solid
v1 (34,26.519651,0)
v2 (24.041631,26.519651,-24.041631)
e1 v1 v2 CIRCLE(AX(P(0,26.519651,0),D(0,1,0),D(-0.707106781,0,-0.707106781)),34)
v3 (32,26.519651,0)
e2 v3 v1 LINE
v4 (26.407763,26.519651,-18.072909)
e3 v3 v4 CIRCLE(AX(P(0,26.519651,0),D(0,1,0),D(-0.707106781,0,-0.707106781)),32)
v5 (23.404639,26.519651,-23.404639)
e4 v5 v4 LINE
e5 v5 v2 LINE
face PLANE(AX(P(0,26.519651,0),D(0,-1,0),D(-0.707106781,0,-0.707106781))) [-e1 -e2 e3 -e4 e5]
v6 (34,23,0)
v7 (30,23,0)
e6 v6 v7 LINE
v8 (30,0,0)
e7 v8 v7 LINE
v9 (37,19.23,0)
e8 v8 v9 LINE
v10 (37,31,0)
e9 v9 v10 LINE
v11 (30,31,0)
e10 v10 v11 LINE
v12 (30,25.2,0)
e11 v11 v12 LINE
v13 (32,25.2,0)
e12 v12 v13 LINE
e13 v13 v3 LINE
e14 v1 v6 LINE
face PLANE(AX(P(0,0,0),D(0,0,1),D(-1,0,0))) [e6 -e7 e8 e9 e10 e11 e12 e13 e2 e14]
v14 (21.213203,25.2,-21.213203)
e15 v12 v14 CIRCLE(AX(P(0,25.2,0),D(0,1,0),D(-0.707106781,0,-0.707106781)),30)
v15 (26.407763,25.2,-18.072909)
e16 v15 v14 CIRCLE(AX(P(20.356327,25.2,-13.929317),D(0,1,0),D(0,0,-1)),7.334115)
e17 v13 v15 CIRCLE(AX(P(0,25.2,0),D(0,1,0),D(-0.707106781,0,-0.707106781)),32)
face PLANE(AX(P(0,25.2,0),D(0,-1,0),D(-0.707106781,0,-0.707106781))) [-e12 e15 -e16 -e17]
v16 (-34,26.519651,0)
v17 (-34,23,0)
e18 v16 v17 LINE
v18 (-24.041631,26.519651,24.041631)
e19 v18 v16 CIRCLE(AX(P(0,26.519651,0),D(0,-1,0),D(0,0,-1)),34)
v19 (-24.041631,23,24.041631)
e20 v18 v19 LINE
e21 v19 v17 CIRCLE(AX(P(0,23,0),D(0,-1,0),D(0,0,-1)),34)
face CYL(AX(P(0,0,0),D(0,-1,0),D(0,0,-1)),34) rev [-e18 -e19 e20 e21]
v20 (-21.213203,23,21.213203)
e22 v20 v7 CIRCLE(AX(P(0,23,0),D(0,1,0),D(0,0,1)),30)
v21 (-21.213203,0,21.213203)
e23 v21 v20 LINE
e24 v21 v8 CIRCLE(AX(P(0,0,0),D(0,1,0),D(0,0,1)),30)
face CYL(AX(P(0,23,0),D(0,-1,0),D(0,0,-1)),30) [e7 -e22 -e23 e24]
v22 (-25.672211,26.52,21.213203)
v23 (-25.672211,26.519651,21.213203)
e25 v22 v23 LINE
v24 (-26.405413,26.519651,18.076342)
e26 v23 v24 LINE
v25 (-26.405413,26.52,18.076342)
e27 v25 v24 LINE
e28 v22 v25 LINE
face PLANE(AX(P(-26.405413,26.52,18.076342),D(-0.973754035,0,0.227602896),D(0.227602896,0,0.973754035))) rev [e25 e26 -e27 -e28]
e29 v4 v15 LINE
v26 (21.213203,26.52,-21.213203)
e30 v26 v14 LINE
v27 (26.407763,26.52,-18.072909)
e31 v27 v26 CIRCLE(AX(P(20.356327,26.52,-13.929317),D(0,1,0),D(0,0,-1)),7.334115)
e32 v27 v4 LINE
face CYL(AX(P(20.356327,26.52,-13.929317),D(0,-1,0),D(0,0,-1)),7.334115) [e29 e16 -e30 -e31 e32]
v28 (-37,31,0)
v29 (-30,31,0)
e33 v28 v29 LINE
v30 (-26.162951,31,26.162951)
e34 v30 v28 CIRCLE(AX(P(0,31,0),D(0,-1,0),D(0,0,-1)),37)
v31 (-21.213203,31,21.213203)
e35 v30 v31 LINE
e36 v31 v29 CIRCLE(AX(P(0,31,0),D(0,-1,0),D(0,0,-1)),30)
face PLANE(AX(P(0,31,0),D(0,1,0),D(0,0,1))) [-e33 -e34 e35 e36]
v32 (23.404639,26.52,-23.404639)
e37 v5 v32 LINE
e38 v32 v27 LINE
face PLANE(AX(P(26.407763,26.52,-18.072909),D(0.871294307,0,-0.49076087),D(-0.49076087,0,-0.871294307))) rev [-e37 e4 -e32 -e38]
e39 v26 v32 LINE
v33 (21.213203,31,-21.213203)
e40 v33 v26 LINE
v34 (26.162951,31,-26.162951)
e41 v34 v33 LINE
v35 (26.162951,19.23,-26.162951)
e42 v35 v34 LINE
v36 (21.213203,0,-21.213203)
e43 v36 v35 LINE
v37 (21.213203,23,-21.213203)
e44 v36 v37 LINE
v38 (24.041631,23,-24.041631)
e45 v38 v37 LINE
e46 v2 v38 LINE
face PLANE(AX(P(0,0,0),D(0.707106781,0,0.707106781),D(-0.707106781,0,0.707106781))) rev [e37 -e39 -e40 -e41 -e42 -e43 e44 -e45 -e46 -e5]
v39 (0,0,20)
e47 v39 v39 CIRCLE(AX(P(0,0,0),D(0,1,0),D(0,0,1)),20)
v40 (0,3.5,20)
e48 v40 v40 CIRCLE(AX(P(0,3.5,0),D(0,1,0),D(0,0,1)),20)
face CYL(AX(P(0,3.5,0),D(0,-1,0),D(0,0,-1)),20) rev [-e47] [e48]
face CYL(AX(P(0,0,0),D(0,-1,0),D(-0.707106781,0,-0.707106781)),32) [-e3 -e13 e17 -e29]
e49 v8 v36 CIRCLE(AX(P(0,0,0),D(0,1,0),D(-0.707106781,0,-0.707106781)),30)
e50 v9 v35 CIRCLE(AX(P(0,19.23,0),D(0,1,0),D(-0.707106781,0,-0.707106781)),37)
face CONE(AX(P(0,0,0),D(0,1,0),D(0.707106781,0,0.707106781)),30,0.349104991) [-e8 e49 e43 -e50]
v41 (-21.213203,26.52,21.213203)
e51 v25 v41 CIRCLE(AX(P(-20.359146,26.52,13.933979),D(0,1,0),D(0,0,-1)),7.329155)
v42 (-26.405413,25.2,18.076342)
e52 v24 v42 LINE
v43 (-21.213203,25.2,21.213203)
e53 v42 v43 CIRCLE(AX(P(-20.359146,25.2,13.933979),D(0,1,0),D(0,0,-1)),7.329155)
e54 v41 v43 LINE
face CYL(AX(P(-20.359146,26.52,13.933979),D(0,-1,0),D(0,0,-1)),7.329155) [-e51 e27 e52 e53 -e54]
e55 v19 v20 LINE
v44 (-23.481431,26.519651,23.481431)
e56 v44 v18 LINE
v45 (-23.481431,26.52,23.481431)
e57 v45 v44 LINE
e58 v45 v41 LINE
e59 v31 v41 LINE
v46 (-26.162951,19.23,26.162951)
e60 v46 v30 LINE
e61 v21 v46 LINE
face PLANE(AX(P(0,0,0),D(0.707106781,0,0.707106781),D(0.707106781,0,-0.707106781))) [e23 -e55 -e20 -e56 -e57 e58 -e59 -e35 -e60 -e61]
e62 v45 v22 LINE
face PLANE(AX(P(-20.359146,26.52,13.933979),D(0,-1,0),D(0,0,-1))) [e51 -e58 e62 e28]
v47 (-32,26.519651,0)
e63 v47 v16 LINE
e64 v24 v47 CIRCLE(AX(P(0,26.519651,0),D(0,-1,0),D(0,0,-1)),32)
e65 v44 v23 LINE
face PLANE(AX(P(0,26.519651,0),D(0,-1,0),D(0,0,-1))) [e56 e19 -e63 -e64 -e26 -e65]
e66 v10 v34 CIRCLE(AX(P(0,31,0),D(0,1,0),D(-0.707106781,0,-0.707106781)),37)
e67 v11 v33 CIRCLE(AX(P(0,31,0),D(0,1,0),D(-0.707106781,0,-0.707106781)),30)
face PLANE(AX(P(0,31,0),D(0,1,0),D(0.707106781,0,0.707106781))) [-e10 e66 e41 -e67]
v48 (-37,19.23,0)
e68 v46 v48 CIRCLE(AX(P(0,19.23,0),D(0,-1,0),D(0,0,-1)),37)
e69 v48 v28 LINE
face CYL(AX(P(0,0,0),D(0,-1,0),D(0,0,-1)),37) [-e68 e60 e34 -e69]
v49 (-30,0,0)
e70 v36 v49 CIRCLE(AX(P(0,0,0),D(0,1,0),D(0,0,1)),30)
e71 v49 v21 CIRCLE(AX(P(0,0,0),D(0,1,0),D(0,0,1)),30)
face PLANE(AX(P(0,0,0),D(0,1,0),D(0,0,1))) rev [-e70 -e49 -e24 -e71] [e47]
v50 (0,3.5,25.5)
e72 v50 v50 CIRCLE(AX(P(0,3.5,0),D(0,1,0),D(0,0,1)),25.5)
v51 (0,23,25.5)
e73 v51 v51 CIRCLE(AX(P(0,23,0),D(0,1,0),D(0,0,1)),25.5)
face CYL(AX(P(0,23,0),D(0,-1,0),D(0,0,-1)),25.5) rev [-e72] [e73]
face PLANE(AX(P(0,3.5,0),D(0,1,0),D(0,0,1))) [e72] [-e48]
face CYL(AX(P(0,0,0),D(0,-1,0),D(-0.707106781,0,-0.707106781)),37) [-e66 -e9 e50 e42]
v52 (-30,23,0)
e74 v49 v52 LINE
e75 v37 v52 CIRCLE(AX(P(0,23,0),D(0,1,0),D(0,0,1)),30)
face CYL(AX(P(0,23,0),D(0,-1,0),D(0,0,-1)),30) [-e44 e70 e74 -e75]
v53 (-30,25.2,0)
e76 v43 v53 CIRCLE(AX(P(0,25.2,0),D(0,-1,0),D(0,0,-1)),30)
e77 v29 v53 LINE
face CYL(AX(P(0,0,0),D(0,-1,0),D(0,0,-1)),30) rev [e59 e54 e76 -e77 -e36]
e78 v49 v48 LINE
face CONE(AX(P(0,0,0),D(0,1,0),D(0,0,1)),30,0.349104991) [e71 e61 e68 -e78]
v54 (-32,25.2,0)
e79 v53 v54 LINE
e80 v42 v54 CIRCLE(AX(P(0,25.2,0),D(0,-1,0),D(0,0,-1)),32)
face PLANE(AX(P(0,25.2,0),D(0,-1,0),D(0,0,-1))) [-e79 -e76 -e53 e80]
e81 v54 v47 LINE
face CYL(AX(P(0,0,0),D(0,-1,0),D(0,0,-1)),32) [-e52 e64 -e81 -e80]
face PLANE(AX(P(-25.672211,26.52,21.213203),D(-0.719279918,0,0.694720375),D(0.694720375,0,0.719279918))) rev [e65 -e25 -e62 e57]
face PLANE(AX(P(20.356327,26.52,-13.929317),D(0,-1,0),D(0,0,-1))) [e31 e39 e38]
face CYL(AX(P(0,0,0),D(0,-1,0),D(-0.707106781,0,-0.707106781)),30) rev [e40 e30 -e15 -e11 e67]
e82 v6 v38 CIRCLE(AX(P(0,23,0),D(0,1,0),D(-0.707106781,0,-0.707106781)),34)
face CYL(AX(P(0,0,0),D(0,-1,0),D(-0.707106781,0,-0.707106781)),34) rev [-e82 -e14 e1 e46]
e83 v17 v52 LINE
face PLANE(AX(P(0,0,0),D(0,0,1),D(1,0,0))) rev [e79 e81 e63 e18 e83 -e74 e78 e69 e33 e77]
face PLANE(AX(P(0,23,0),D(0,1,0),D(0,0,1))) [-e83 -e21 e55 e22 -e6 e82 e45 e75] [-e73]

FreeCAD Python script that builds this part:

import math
import FreeCAD as App
import Part
import Sketcher

V = App.Vector
Q = App.Units.Quantity

doc = App.newDocument("Part")
params = doc.addObject("Spreadsheet::Sheet", "Params")
for row, (alias, value) in enumerate([
    ("sketch1_diameter", "60 mm"),
    ("sketch1_diameter2", "51 mm"),
    ("pad1_length", "23 mm"),
    ("sketch2_diameter", "51 mm"),
    ("sketch2_diameter2", "40 mm"),
    ("pad2_length", "3.5 mm"),
    ("sketch3_width", "4 mm"),
    ("sketch3_width2", "7 mm"),
    ("sketch3_height", "23 mm"),
    ("sketch3_height2", "5.8 mm"),
    ("sketch3_height3", "11.77 mm"),
    ("revolution_angle", "45 deg"),
    ("pocket1_length", "1.32 mm"),
    ("pocket2_length", "1.32 mm"),
], start=1):
    params.set(f"A{row}", alias)
    params.set(f"B{row}", "=" + value)
    params.setAlias(f"B{row}", alias)

body = doc.addObject("PartDesign::Body", "Body")

sketch1 = body.newObject("Sketcher::SketchObject", "Sketch")
sketch1.AttachmentSupport = (doc.getObject("XZ_Plane"), [""])
sketch1.MapMode = "FlatFace"
sketch1.addGeometry(Part.Circle(V(0, 0, 0), V(0, 0, 1), 30), False)
sketch1.addGeometry(Part.Circle(V(0, 0, 0), V(0, 0, 1), 26), False)
sketch1.addConstraint(Sketcher.Constraint("Coincident", 0, 3, -1, 1))
sketch1.addConstraint(Sketcher.Constraint("Coincident", 1, 3, -1, 1))
sketch1.addConstraint(Sketcher.Constraint("Diameter", 0, Q("60 mm")))
sketch1.addConstraint(Sketcher.Constraint("Diameter", 1, Q("51 mm")))
sketch1.setExpression("Constraints[2]", "Params.sketch1_diameter")
sketch1.setExpression("Constraints[3]", "Params.sketch1_diameter2")
pad1 = body.newObject("PartDesign::Pad", "Pad")
pad1.Profile = sketch1
pad1.setExpression("Length", "Params.pad1_length")
pad1.Reversed = True

sketch2 = body.newObject("Sketcher::SketchObject", "Sketch001")
sketch2.AttachmentSupport = (doc.getObject("XZ_Plane"), [""])
sketch2.MapMode = "FlatFace"
sketch2.addGeometry(Part.Circle(V(0, 0, 0), V(0, 0, 1), 26), False)
sketch2.addGeometry(Part.Circle(V(0, 0, 0), V(0, 0, 1), 20), False)
sketch2.addConstraint(Sketcher.Constraint("Coincident", 0, 3, -1, 1))
sketch2.addConstraint(Sketcher.Constraint("Coincident", 1, 3, -1, 1))
sketch2.addConstraint(Sketcher.Constraint("Diameter", 0, Q("51 mm")))
sketch2.addConstraint(Sketcher.Constraint("Diameter", 1, Q("40 mm")))
sketch2.setExpression("Constraints[2]", "Params.sketch2_diameter")
sketch2.setExpression("Constraints[3]", "Params.sketch2_diameter2")
pad2 = body.newObject("PartDesign::Pad", "Pad001")
pad2.Profile = sketch2
pad2.setExpression("Length", "Params.pad2_length")
pad2.Reversed = True

sketch3 = body.newObject("Sketcher::SketchObject", "Sketch002")
sketch3.AttachmentSupport = (doc.getObject("XY_Plane"), [""])
sketch3.MapMode = "FlatFace"
sketch3.addGeometry(Part.LineSegment(V(-37, 19.2, 0), V(-30, 0, 0)), False)
sketch3.addGeometry(Part.LineSegment(V(-30, 0, 0), V(-30, 23, 0)), False)
sketch3.addGeometry(Part.LineSegment(V(-30, 23, 0), V(-34, 23, 0)), False)
sketch3.addGeometry(Part.LineSegment(V(-34, 23, 0), V(-34, 26.5, 0)), False)
sketch3.addGeometry(Part.LineSegment(V(-34, 26.5, 0), V(-32, 26.5, 0)), False)
sketch3.addGeometry(Part.LineSegment(V(-32, 26.5, 0), V(-32, 25.2, 0)), False)
sketch3.addGeometry(Part.LineSegment(V(-32, 25.2, 0), V(-30, 25.2, 0)), False)
sketch3.addGeometry(Part.LineSegment(V(-30, 25.2, 0), V(-30, 31, 0)), False)
sketch3.addGeometry(Part.LineSegment(V(-30, 31, 0), V(-37, 31, 0)), False)
sketch3.addGeometry(Part.LineSegment(V(-37, 31, 0), V(-37, 19.2, 0)), False)
sketch3.addConstraint(Sketcher.Constraint("Coincident", 0, 2, 1, 1))
sketch3.addConstraint(Sketcher.Constraint("Coincident", 1, 2, 2, 1))
sketch3.addConstraint(Sketcher.Constraint("Coincident", 2, 2, 3, 1))
sketch3.addConstraint(Sketcher.Constraint("Coincident", 3, 2, 4, 1))
sketch3.addConstraint(Sketcher.Constraint("Coincident", 4, 2, 5, 1))
sketch3.addConstraint(Sketcher.Constraint("Coincident", 5, 2, 6, 1))
sketch3.addConstraint(Sketcher.Constraint("Coincident", 6, 2, 7, 1))
sketch3.addConstraint(Sketcher.Constraint("Coincident", 7, 2, 8, 1))
sketch3.addConstraint(Sketcher.Constraint("Coincident", 8, 2, 9, 1))
sketch3.addConstraint(Sketcher.Constraint("Coincident", 9, 2, 0, 1))
sketch3.addConstraint(Sketcher.Constraint("Vertical", 1))
sketch3.addConstraint(Sketcher.Constraint("Horizontal", 2))
sketch3.addConstraint(Sketcher.Constraint("Vertical", 3))
sketch3.addConstraint(Sketcher.Constraint("Horizontal", 4))
sketch3.addConstraint(Sketcher.Constraint("Vertical", 5))
sketch3.addConstraint(Sketcher.Constraint("Horizontal", 6))
sketch3.addConstraint(Sketcher.Constraint("Vertical", 7))
sketch3.addConstraint(Sketcher.Constraint("Horizontal", 8))
sketch3.addConstraint(Sketcher.Constraint("Vertical", 9))
sketch3.addConstraint(Sketcher.Constraint("PointOnObject", 0, 2, -1))
sketch3.addConstraint(Sketcher.Constraint("Vertical", 1, 2, 6, 2))
sketch3.addConstraint(Sketcher.Constraint("Equal", 4, 6))
sketch3.addConstraint(Sketcher.Constraint("DistanceX", 2, 2, 2, 1, Q("4 mm")))
sketch3.addConstraint(Sketcher.Constraint("DistanceX", 8, 2, 8, 1, Q("7 mm")))
sketch3.addConstraint(Sketcher.Constraint("DistanceY", 1, 1, 1, 2, Q("23 mm")))
sketch3.addConstraint(Sketcher.Constraint("DistanceY", 7, 1, 7, 2, Q("5.8 mm")))
sketch3.addConstraint(Sketcher.Constraint("DistanceX", 0, 2, -1, 1, Q("30 mm")))
sketch3.addConstraint(Sketcher.Constraint("DistanceY", -1, 1, 7, 2, Q("31 mm")))
sketch3.addConstraint(Sketcher.Constraint("DistanceY", 9, 2, 9, 1, Q("11.77 mm")))
sketch3.addConstraint(Sketcher.Constraint("DistanceY", 3, 1, 3, 2, Q("3.519651 mm")))
sketch3.setExpression("Constraints[22]", "Params.sketch3_width")
sketch3.setExpression("Constraints[23]", "Params.sketch3_width2")
sketch3.setExpression("Constraints[24]", "Params.sketch3_height")
sketch3.setExpression("Constraints[25]", "Params.sketch3_height2")
sketch3.setExpression("Constraints[28]", "Params.sketch3_height3")
revolution = body.newObject("PartDesign::Revolution", "Revolution")
revolution.Profile = sketch3
revolution.ReferenceAxis = (sketch3, ["V_Axis"])
revolution.setExpression("Angle", "Params.revolution_angle")
doc.recompute()

datumplane = body.newObject("PartDesign::Plane", "DatumPlane")
datumplane.Placement = App.Placement(V(0, 0, 0), App.Rotation(V(0.382683432, 0, 0.923879533), V(0, -1, 0), V(0.923879533, 0, -0.382683432), "ZXY"))
mirrored = body.newObject("PartDesign::Mirrored", "Mirrored")
mirrored.Originals = [revolution]
mirrored.MirrorPlane = (datumplane, [""])
body.Tip = mirrored

sketch4 = body.newObject("Sketcher::SketchObject", "Sketch003")
sketch4.AttachmentSupport = (doc.getObject("XZ_Plane"), [""])
sketch4.MapMode = "FlatFace"
sketch4.AttachmentOffset = App.Placement(V(0, 0, -25.2), App.Rotation())
sketch4.addGeometry(Part.LineSegment(V(-25.7, 21.2, 0), V(-26.4, 18.1, 0)), False)
sketch4.addGeometry(Part.ArcOfCircle(Part.Circle(V(-20.4, 13.9, 0), V(0, 0, 1), 7.3), math.radians(97), math.radians(146)), False)
sketch4.addGeometry(Part.LineSegment(V(-21.2, 21.2, 0), V(-18, 21.7, 0)), False)
sketch4.addGeometry(Part.LineSegment(V(-18, 21.7, 0), V(-22.1, 24.9, 0)), False)
sketch4.addGeometry(Part.LineSegment(V(-22.1, 24.9, 0), V(-25.7, 21.2, 0)), False)
sketch4.addConstraint(Sketcher.Constraint("Coincident", 0, 2, 1, 2))
sketch4.addConstraint(Sketcher.Constraint("Coincident", 1, 1, 2, 1))
sketch4.addConstraint(Sketcher.Constraint("Coincident", 2, 2, 3, 1))
sketch4.addConstraint(Sketcher.Constraint("Coincident", 3, 2, 4, 1))
sketch4.addConstraint(Sketcher.Constraint("Coincident", 4, 2, 0, 1))
sketch4.addConstraint(Sketcher.Constraint("Horizontal", 1, 1, 4, 2))
sketch4.addConstraint(Sketcher.Constraint("Radius", 1, Q("7.329155 mm")))
sketch4.addConstraint(Sketcher.Constraint("DistanceY", 0, 2, 3, 2, Q("6.873599 mm")))
sketch4.addConstraint(Sketcher.Constraint("Distance", 0, Q("3.22141 mm")))
sketch4.addConstraint(Sketcher.Constraint("Distance", 2, Q("3.25468 mm")))
sketch4.addConstraint(Sketcher.Constraint("Distance", 4, Q("5.195109 mm")))
sketch4.addConstraint(Sketcher.Constraint("DistanceY", -1, 1, 1, 3, Q("13.933979 mm")))
sketch4.addConstraint(Sketcher.Constraint("DistanceX", 2, 2, -1, 1, Q("17.99117 mm")))
sketch4.addConstraint(Sketcher.Constraint("DistanceY", -1, 1, 3, 2, Q("24.949941 mm")))
sketch4.addConstraint(Sketcher.Constraint("DistanceX", 4, 2, -1, 1, Q("25.672211 mm")))
sketch4.addConstraint(Sketcher.Constraint("DistanceX", 0, 2, 1, 1, Q("5.19221 mm")))
pocket1 = body.newObject("PartDesign::Pocket", "Pocket")
pocket1.Profile = sketch4
pocket1.setExpression("Length", "Params.pocket1_length")

sketch5 = body.newObject("Sketcher::SketchObject", "Sketch004")
sketch5.AttachmentSupport = (doc.getObject("XZ_Plane"), [""])
sketch5.MapMode = "FlatFace"
sketch5.AttachmentOffset = App.Placement(V(0, 0, -25.2), App.Rotation())
sketch5.addGeometry(Part.LineSegment(V(22.9, -24.3, 0), V(26.4, -18.1, 0)), False)
sketch5.addGeometry(Part.ArcOfCircle(Part.Circle(V(20.4, -13.9, 0), V(0, 0, 1), 7.3), math.radians(-83), math.radians(-34)), False)
sketch5.addGeometry(Part.LineSegment(V(21.2, -21.2, 0), V(19.3, -22.3, 0)), False)
sketch5.addGeometry(Part.LineSegment(V(19.3, -22.3, 0), V(22.9, -24.3, 0)), False)
sketch5.addConstraint(Sketcher.Constraint("Coincident", 0, 2, 1, 2))
sketch5.addConstraint(Sketcher.Constraint("Coincident", 1, 1, 2, 1))
sketch5.addConstraint(Sketcher.Constraint("Coincident", 2, 2, 3, 1))
sketch5.addConstraint(Sketcher.Constraint("Coincident", 3, 2, 0, 1))
sketch5.addConstraint(Sketcher.Constraint("Perpendicular", 0, 3))
sketch5.addConstraint(Sketcher.Constraint("Radius", 1, Q("7.334115 mm")))
sketch5.addConstraint(Sketcher.Constraint("Distance", 2, Q("2.205238 mm")))
sketch5.addConstraint(Sketcher.Constraint("DistanceY", 0, 2, -1, 1, Q("18.072909 mm")))
sketch5.addConstraint(Sketcher.Constraint("DistanceY", 3, 2, -1, 1, Q("24.345219 mm")))
sketch5.addConstraint(Sketcher.Constraint("DistanceY", 0, 2, 1, 3, Q("4.143592 mm")))
sketch5.addConstraint(Sketcher.Constraint("DistanceX", 1, 1, 0, 2, Q("5.19456 mm")))
sketch5.addConstraint(Sketcher.Constraint("DistanceY", 2, 2, 1, 1, Q("1.12915 mm")))
sketch5.addConstraint(Sketcher.Constraint("DistanceX", -1, 1, 1, 3, Q("20.356327 mm")))
pocket2 = body.newObject("PartDesign::Pocket", "Pocket001")
pocket2.Profile = sketch5
pocket2.setExpression("Length", "Params.pocket2_length")

doc.recompute()
